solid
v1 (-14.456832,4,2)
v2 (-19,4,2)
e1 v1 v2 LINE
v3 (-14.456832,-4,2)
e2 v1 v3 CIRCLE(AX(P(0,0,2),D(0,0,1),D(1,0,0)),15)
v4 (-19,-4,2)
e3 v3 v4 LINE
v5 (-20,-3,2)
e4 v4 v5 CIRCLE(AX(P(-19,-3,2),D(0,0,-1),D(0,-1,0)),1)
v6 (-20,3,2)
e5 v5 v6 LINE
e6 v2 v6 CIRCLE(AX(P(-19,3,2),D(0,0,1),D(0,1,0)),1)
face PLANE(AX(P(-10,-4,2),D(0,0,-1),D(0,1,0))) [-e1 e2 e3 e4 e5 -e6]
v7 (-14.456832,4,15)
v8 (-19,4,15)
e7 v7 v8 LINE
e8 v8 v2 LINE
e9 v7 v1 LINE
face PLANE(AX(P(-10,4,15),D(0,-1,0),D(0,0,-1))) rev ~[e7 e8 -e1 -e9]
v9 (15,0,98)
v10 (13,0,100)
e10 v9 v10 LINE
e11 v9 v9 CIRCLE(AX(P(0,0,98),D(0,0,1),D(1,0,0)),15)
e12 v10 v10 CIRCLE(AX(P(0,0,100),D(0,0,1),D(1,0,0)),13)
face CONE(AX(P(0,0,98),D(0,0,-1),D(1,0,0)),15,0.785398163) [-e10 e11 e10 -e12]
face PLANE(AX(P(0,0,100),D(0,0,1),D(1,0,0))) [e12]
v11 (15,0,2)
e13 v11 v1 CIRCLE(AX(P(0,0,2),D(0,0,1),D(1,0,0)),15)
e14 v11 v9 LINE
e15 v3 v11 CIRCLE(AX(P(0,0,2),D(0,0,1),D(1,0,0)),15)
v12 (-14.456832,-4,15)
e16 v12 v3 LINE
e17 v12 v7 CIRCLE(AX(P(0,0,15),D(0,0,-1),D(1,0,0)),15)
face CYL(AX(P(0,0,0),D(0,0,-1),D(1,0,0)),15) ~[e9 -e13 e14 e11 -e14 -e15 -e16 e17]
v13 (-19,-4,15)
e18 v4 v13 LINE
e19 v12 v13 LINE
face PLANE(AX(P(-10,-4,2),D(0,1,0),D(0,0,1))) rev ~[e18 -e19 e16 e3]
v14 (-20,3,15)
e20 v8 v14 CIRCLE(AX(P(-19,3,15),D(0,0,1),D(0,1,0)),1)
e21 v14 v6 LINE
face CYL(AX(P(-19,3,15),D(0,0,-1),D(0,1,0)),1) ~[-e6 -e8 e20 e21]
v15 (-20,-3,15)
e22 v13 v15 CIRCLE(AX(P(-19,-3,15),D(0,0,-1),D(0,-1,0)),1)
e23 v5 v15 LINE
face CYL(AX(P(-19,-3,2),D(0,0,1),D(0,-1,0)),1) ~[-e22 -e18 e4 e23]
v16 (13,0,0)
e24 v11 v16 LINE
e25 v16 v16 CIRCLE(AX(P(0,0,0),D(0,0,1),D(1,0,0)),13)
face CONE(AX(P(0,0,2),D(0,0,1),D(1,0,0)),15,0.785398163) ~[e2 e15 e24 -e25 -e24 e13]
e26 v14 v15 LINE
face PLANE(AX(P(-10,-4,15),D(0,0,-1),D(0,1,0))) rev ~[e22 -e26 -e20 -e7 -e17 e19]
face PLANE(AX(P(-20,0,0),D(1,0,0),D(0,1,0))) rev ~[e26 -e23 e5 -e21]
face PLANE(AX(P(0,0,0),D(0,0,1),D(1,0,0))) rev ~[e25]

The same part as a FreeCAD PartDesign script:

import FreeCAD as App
import Part
import Sketcher
from FreeCAD import Vector
Q = App.Units.Quantity


def edges_at(feature, points):
    """Names of the edges that pass closest to the given points."""
    edges = feature.Shape.Edges
    near = lambda p: min(range(len(edges)), key=lambda i: edges[i].distToShape(Part.Vertex(*p))[0])
    return sorted({f"Edge{near(p) + 1}" for p in points})


def add_polygon(sketch, points):
    """Adds a closed chain of lines whose ends are joined by coincident constraints."""
    first, n = sketch.GeometryCount, len(points)
    for a, b in zip(points, points[1:] + points[:1]):
        sketch.addGeometry(Part.LineSegment(App.Vector(*a, 0), App.Vector(*b, 0)), False)
    for i in range(n):
        sketch.addConstraint(Sketcher.Constraint("Coincident", first + i, 2, first + (i + 1) % n, 1))

doc = App.newDocument("Part")
body = doc.addObject("PartDesign::Body", "Body")

sketch1 = body.newObject("Sketcher::SketchObject", "Sketch")
sketch1.AttachmentSupport = (doc.getObject("XY_Plane"), [""])
sketch1.MapMode = "FlatFace"
sketch1.addGeometry(Part.Circle(Vector(0, 0, 0), Vector(0, 0, 1), 15), False)
sketch1.addConstraint([
    Sketcher.Constraint("Coincident", 0, 3, -1, 1),
    Sketcher.Constraint("Diameter", 0, Q("30 mm")),
])
pad1 = body.newObject("PartDesign::Pad", "Pad")
pad1.Profile = sketch1
pad1.Length = 100
doc.recompute()

chamfer = body.newObject("PartDesign::Chamfer", "Chamfer")
chamfer.Base = (pad1, edges_at(pad1, [(-15, 0, 100)]))
chamfer.Size = 2
doc.recompute()

chamfer2 = body.newObject("PartDesign::Chamfer", "Chamfer001")
chamfer2.Base = (chamfer, edges_at(chamfer, [(-15, 0, 0)]))
chamfer2.Size = 2

sketch2 = body.newObject("Sketcher::SketchObject", "Sketch001")
sketch2.AttachmentSupport = (doc.getObject("YZ_Plane"), [""])
sketch2.MapMode = "FlatFace"
sketch2.AttachmentOffset = App.Placement(Vector(0, 0, -10), App.Rotation())
add_polygon(sketch2, [(-4, 15), (-4, 2), (4, 2), (4, 15)])
sketch2.addConstraint([
    Sketcher.Constraint("Vertical", 0),
    Sketcher.Constraint("Horizontal", 1),
    Sketcher.Constraint("Vertical", 2),
    Sketcher.Constraint("Horizontal", 3),
    Sketcher.Constraint("DistanceX", 1, 1, 1, 2, Q("8 mm")),
    Sketcher.Constraint("DistanceY", 0, 2, 0, 1, Q("13 mm")),
    Sketcher.Constraint("DistanceY", -1, 1, 2, 2, Q("15 mm")),
    Sketcher.Constraint("DistanceX", 0, 2, -1, 1, Q("4 mm")),
])
pad2 = body.newObject("PartDesign::Pad", "Pad001")
pad2.Profile = sketch2
pad2.Length = 10
pad2.Reversed = True
doc.recompute()

fillet = body.newObject("PartDesign::Fillet", "Fillet")
fillet.Base = (pad2, edges_at(pad2, [(-20, 4, 8.5), (-20, -4, 8.5)]))
fillet.Radius = 1

doc.recompute()
